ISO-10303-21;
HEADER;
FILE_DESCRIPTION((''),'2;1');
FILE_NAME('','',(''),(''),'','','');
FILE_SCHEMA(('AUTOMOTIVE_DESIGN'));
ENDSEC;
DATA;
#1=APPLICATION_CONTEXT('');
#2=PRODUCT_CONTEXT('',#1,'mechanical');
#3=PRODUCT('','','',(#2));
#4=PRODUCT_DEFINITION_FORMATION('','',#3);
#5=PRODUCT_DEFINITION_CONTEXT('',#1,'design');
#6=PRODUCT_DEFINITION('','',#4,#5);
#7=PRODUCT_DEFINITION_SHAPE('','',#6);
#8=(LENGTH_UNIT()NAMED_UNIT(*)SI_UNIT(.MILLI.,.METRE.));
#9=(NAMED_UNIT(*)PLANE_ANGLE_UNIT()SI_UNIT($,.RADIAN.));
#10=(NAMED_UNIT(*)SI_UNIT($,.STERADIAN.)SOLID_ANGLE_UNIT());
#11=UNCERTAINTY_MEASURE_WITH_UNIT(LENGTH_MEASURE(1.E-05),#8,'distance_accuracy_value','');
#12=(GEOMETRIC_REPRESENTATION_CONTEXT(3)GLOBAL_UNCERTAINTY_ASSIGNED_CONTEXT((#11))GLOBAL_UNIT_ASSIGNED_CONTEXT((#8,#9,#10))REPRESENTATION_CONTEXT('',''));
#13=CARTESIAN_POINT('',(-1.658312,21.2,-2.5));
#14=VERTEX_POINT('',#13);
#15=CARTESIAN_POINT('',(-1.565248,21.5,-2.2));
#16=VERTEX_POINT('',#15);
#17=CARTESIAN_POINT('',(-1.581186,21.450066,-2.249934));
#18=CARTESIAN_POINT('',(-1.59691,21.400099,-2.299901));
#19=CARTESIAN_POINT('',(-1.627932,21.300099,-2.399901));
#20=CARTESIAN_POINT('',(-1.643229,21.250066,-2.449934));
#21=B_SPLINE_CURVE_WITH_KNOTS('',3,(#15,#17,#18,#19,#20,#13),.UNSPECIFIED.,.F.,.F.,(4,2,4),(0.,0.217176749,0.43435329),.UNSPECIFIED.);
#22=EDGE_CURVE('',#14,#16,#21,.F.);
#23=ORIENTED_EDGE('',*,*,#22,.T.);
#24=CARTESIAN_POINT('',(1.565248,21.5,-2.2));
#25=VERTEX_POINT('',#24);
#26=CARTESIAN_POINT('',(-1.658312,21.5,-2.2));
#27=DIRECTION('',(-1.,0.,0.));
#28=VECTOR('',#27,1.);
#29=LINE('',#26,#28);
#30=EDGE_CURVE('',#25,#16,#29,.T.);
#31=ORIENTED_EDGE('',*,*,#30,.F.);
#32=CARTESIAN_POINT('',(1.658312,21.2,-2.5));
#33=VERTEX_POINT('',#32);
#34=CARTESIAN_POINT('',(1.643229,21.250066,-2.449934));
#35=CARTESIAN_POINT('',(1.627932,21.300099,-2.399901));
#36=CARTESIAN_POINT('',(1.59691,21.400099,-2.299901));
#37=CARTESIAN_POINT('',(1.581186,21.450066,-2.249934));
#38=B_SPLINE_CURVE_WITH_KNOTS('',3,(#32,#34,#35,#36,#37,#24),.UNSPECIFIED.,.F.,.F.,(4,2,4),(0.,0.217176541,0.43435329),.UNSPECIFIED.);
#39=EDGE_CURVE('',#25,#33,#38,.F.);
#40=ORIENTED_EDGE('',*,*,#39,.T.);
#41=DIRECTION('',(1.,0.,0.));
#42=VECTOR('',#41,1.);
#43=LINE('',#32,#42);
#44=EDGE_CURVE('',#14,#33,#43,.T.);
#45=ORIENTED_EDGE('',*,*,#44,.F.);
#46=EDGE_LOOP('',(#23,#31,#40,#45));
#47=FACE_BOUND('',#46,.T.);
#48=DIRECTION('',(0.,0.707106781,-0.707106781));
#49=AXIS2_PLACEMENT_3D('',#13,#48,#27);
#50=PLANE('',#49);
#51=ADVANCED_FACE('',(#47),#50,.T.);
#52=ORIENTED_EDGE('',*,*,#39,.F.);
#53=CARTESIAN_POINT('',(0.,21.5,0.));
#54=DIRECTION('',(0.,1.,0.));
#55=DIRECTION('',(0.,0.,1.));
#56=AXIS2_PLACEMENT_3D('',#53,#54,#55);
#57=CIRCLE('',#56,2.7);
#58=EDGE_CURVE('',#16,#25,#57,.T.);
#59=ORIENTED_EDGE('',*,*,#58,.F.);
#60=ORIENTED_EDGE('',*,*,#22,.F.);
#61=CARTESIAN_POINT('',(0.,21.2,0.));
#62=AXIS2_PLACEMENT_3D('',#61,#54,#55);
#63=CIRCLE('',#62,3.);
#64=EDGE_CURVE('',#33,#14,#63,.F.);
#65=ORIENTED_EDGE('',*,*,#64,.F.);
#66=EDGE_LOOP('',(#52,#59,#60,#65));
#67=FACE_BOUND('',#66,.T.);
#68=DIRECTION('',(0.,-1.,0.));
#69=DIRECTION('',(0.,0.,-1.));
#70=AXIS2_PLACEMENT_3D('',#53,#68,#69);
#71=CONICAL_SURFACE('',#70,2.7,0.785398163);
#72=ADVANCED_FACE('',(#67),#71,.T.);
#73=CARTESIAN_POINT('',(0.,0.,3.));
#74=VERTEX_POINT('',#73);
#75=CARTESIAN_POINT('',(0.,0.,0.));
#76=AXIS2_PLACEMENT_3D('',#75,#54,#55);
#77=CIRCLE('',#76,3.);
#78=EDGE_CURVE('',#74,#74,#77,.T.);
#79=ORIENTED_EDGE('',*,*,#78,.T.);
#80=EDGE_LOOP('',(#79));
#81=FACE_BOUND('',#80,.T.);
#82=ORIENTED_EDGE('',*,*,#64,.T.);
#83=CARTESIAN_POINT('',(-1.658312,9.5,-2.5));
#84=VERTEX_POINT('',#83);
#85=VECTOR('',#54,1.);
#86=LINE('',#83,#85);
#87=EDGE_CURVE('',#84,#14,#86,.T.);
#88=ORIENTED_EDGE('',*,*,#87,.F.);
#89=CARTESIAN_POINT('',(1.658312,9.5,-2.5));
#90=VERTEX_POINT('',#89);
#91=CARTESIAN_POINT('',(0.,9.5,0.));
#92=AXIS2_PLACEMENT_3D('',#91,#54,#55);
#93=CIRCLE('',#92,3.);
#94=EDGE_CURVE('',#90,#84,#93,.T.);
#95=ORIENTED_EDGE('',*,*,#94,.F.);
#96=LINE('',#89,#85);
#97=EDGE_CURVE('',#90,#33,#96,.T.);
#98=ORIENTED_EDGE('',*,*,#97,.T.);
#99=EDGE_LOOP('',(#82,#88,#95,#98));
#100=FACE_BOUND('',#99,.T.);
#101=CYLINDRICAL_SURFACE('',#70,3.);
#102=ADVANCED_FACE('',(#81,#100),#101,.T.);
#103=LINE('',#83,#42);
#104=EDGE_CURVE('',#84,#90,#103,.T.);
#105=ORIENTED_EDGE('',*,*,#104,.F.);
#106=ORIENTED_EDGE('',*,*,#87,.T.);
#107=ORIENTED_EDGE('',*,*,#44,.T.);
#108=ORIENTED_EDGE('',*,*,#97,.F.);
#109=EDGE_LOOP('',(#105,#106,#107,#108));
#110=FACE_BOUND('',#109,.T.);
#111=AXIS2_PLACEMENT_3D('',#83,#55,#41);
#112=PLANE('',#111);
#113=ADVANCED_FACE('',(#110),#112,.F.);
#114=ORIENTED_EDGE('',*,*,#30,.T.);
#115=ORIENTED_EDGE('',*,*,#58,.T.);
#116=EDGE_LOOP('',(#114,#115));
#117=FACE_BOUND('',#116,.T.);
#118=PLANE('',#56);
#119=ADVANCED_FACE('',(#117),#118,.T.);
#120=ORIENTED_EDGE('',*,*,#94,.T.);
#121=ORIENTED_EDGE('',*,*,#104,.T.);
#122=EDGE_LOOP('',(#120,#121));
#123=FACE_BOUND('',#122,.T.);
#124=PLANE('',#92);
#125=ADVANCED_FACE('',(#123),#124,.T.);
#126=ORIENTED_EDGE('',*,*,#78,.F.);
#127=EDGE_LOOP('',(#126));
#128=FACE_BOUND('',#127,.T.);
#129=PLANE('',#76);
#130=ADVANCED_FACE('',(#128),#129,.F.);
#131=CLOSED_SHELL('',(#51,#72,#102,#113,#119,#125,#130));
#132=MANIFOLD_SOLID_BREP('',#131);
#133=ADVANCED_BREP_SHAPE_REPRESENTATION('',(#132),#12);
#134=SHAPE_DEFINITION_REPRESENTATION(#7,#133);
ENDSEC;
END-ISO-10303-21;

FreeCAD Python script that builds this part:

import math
import FreeCAD as App
import Part
import Sketcher

V = App.Vector
Q = App.Units.Quantity


def edges_at(feature, points):
    """Names of the edges that pass closest to the given points."""
    edges = feature.Shape.Edges
    near = lambda p: min(range(len(edges)), key=lambda i: edges[i].distToShape(Part.Vertex(*p))[0])
    return sorted({f"Edge{near(p) + 1}" for p in points})

doc = App.newDocument("Part")
body = doc.addObject("PartDesign::Body", "Body")

sketch1 = body.newObject("Sketcher::SketchObject", "Sketch")
sketch1.AttachmentSupport = (doc.getObject("XZ_Plane"), [""])
sketch1.MapMode = "FlatFace"
sketch1.addGeometry(Part.Circle(V(0, 0, 0), V(0, 0, 1), 3), False)
sketch1.addConstraint([
    Sketcher.Constraint("Coincident", 0, 3, -1, 1),
    Sketcher.Constraint("Diameter", 0, Q("6 mm")),
])
pad1 = body.newObject("PartDesign::Pad", "Pad")
pad1.Profile = sketch1
pad1.Length = 21.5
pad1.Reversed = True

sketch2 = body.newObject("Sketcher::SketchObject", "Sketch001")
sketch2.AttachmentSupport = (doc.getObject("XZ_Plane"), [""])
sketch2.MapMode = "FlatFace"
sketch2.AttachmentOffset = App.Placement(V(0, 0, -9.5), App.Rotation())
sketch2.addGeometry([
    Part.LineSegment(V(-1.658312, -2.5, 0), V(1.658312, -2.5, 0)),
    Part.ArcOfCircle(Part.Circle(V(0, 0, 0), V(0, 0, 1), 3), math.radians(-123.55731), math.radians(-56.44269)),
], False)
sketch2.addConstraint([
    Sketcher.Constraint("Coincident", 0, 1, 1, 1),
    Sketcher.Constraint("Coincident", 1, 2, 0, 2),
    Sketcher.Constraint("Horizontal", 0),
    Sketcher.Constraint("Coincident", 1, 3, -1, 1),
    Sketcher.Constraint("Radius", 1, Q("3 mm")),
    Sketcher.Constraint("DistanceY", 0, 1, -1, 1, Q("2.5 mm")),
])
pocket1 = body.newObject("PartDesign::Pocket", "Pocket")
pocket1.Profile = sketch2
pocket1.Length = 12
doc.recompute()

chamfer = body.newObject("PartDesign::Chamfer", "Chamfer")
chamfer.Base = (pocket1, edges_at(pocket1, [(-2.872, 21.5, 0.866), (0, 21.5, -2.5)]))
chamfer.Size = 0.3

doc.recompute()
